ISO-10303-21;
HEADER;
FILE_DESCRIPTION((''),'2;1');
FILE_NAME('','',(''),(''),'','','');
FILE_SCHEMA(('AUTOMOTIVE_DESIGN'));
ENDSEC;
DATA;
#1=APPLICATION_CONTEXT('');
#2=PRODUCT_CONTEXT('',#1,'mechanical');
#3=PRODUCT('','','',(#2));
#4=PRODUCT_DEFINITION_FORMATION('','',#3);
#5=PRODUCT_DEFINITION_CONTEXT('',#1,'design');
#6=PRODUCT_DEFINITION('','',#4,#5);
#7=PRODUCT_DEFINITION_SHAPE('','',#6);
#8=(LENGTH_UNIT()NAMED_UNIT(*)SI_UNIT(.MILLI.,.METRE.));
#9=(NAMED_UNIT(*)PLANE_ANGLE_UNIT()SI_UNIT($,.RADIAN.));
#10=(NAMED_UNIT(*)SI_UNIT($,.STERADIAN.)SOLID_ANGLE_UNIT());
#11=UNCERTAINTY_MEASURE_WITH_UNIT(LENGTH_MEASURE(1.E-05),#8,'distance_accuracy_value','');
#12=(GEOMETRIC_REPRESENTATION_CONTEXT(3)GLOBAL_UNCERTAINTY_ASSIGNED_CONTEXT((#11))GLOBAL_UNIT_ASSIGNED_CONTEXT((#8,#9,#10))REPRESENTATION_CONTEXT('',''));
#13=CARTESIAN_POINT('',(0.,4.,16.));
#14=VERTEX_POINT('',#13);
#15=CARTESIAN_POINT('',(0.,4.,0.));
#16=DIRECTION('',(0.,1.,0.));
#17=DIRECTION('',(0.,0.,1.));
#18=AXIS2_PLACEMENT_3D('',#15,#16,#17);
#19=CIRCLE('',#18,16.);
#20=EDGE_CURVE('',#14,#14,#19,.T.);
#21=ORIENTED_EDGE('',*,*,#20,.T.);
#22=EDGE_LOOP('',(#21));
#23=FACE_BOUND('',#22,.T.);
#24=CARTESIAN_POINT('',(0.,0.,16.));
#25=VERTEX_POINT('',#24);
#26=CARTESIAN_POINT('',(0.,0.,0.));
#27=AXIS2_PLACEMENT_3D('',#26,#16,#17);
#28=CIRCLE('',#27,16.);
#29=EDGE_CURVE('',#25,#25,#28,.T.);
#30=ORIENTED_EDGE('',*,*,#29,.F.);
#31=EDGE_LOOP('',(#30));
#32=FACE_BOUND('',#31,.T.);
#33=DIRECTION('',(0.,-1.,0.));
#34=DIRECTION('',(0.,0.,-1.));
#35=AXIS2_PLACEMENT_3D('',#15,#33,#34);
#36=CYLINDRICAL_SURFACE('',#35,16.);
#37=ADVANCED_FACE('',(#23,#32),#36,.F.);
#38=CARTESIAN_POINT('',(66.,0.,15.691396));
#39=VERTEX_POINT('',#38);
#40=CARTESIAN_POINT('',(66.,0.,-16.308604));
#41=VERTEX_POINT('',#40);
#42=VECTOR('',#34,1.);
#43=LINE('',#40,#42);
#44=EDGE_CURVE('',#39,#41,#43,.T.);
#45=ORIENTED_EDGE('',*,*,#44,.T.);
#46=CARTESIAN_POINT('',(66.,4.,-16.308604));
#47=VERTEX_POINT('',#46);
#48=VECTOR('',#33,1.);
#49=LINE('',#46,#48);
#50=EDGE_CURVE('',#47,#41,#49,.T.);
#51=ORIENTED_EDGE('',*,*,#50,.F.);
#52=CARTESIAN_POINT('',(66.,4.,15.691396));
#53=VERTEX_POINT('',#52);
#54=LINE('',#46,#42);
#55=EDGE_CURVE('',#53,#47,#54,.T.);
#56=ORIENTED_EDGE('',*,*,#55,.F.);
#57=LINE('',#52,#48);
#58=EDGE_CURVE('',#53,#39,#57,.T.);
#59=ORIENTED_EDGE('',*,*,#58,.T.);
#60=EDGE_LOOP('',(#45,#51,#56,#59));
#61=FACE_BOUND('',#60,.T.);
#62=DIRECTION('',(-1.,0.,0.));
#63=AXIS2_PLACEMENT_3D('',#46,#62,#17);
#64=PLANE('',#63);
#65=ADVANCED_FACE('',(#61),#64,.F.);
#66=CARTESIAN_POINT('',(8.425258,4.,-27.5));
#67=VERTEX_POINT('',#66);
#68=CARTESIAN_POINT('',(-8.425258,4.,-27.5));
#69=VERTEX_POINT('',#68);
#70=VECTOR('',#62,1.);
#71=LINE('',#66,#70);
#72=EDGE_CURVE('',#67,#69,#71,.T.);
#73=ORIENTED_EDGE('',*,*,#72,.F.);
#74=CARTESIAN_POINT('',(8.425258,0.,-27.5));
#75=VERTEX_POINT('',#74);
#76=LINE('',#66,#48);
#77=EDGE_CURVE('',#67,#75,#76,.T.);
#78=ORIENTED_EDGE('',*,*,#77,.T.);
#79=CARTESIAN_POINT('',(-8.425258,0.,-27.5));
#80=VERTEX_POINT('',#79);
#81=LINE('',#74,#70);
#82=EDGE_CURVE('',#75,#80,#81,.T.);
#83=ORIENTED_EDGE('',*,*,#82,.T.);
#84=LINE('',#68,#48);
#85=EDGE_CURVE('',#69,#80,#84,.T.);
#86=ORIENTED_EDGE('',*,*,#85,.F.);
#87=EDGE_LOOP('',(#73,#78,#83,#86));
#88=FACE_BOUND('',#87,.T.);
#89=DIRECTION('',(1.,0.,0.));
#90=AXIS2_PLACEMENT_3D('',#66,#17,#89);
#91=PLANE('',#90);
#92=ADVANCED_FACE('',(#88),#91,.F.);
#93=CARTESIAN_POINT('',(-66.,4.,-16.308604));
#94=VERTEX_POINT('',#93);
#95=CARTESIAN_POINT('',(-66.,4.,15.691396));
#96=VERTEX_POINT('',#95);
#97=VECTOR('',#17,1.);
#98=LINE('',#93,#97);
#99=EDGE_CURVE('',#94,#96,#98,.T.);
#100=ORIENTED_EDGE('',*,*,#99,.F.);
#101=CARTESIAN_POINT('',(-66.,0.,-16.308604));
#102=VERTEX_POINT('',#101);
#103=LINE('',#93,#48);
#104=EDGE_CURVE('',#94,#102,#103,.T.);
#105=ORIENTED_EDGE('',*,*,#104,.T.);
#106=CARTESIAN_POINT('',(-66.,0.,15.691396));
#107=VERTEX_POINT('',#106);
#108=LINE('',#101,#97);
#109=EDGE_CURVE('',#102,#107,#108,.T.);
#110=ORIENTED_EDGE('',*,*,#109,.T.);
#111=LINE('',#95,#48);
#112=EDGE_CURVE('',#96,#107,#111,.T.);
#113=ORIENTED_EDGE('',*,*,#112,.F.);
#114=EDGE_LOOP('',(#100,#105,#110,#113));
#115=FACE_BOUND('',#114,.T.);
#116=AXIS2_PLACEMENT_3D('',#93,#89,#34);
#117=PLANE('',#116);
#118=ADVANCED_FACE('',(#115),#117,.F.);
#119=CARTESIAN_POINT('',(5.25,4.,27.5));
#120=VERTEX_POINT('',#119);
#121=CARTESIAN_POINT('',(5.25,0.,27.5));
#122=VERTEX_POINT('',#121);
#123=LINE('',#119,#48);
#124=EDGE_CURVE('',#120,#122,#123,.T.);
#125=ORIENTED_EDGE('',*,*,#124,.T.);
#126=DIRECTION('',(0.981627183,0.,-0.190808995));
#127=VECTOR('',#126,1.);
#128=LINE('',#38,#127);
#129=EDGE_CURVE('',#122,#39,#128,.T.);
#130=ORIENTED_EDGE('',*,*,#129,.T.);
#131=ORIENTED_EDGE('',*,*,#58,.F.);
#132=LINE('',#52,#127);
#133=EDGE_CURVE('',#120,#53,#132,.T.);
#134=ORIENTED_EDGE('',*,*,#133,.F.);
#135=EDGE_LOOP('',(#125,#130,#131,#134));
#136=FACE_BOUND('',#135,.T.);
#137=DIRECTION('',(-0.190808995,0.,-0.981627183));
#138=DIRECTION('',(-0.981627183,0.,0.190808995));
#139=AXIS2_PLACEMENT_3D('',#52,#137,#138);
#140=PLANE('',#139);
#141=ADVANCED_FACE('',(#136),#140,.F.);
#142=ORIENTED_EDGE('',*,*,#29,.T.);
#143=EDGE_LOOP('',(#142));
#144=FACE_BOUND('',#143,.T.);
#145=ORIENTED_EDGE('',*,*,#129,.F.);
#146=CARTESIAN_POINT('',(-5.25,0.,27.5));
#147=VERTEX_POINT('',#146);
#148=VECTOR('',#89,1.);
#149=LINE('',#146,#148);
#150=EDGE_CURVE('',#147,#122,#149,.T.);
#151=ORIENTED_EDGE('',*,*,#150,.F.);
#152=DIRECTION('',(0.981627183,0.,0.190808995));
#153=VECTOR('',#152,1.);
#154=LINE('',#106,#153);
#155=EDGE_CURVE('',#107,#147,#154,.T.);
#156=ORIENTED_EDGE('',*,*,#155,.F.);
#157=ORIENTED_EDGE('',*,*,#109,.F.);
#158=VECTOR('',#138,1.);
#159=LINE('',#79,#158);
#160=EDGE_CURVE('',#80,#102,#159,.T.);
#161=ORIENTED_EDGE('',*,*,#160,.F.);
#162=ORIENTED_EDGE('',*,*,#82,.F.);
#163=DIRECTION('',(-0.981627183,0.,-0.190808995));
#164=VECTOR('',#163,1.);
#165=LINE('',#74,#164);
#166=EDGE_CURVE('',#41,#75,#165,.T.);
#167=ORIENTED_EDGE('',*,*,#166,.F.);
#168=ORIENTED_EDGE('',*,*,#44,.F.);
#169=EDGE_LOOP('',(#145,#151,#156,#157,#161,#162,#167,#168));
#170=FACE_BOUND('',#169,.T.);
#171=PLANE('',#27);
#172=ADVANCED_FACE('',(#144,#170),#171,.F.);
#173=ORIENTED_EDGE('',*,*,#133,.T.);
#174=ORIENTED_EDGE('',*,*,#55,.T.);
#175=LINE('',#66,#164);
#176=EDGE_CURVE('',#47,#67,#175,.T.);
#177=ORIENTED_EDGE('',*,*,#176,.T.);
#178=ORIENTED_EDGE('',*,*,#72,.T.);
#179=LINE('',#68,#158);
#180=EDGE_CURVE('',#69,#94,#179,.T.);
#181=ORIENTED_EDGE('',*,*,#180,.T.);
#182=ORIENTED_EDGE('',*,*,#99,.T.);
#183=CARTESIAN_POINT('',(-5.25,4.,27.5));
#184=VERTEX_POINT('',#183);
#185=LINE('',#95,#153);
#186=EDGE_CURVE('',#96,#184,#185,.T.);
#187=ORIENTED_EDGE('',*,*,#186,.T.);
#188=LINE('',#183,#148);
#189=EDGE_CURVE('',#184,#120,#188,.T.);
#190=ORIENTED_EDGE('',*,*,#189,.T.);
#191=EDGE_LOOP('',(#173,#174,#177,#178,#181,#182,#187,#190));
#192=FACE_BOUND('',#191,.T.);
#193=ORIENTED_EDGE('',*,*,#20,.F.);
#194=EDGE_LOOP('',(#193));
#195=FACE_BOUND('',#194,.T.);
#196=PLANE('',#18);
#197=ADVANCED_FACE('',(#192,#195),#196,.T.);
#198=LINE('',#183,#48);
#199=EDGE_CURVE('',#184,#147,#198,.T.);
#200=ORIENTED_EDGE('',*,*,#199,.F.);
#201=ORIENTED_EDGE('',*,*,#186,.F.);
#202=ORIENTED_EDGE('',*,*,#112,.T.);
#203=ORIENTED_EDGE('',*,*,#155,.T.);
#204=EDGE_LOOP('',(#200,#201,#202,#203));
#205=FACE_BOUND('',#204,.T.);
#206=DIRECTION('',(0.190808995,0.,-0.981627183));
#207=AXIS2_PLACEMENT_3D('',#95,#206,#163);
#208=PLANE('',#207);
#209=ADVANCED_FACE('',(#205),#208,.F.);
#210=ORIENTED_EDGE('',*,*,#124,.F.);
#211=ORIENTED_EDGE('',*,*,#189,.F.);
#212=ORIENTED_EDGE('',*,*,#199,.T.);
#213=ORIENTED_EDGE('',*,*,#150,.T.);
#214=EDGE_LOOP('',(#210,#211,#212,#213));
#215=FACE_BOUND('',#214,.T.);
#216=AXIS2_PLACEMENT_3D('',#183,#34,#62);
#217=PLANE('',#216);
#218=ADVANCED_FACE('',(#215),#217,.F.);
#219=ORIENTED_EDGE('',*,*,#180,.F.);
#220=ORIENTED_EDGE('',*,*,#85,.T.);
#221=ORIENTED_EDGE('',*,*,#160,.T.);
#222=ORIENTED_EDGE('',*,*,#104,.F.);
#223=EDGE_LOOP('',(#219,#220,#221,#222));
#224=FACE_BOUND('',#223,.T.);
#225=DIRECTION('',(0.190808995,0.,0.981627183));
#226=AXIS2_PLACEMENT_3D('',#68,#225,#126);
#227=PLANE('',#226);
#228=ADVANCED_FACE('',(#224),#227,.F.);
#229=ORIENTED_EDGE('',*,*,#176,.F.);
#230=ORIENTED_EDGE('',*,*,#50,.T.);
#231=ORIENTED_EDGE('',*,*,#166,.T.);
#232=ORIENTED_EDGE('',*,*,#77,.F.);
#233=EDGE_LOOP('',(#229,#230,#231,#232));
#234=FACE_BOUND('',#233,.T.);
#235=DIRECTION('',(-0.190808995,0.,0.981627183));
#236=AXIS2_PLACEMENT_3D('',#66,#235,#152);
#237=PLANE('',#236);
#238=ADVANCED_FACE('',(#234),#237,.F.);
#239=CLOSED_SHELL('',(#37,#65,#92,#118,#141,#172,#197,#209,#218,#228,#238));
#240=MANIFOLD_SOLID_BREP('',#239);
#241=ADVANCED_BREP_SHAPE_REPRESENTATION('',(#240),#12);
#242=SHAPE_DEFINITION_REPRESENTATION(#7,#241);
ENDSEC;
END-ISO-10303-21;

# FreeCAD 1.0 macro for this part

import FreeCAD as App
import Part
import Sketcher
from FreeCAD import Vector
Q = App.Units.Quantity


def add_polygon(sketch, points):
    """Adds a closed chain of lines whose ends are joined by coincident constraints."""
    first, n = sketch.GeometryCount, len(points)
    for a, b in zip(points, points[1:] + points[:1]):
        sketch.addGeometry(Part.LineSegment(App.Vector(*a, 0), App.Vector(*b, 0)), False)
    for i in range(n):
        sketch.addConstraint(Sketcher.Constraint("Coincident", first + i, 2, first + (i + 1) % n, 1))

doc = App.newDocument("Part")
body = doc.addObject("PartDesign::Body", "Body")

# Sketch on XZ plane
sketch1 = body.newObject("Sketcher::SketchObject", "Sketch")
sketch1.AttachmentSupport = (doc.getObject("XZ_Plane"), [""])
sketch1.MapMode = "FlatFace"
add_polygon(sketch1, [(-66, -16), (-66, 16), (-5, 28), (5, 28), (66, 16), (66, -16), (8, -28), (-8, -28)])  # lines 0-7
sketch1.addGeometry(Part.Circle(Vector(0, 0, 0), Vector(0, 0, 1), 16), False)  # 8
sketch1.addConstraint([
    Sketcher.Constraint("Vertical", 0),
    Sketcher.Constraint("Horizontal", 2),
    Sketcher.Constraint("Vertical", 4),
    Sketcher.Constraint("Horizontal", 6),
    Sketcher.Constraint("Coincident", 8, 3, -1, 1),
    Sketcher.Constraint("Symmetric", 0, 2, 3, 2, -2),
    Sketcher.Constraint("Parallel", 1, 5),
    Sketcher.Constraint("Parallel", 3, 7),
    Sketcher.Constraint("Horizontal", 4, 2, 7, 2),
    Sketcher.Constraint("Equal", 1, 3),
    Sketcher.Constraint("Diameter", 8, 32.0),
    Sketcher.Constraint("DistanceY", 0, 1, 0, 2, 32.0),
    Sketcher.Constraint("Angle", 1, Q("11 deg")),
    Sketcher.Constraint("DistanceX", 2, 1, 2, 2, 10.5),
    Sketcher.Constraint("DistanceX", 0, 2, -1, 1, 66.0),
    Sketcher.Constraint("DistanceY", 5, 2, 2, 2, 55.0),
    Sketcher.Constraint("DistanceY", -1, 1, 1, 2, 27.5),
])
pad1 = body.newObject("PartDesign::Pad", "Pad")
pad1.Profile = sketch1
pad1.Length = 4
pad1.Reversed = True

doc.recompute()
